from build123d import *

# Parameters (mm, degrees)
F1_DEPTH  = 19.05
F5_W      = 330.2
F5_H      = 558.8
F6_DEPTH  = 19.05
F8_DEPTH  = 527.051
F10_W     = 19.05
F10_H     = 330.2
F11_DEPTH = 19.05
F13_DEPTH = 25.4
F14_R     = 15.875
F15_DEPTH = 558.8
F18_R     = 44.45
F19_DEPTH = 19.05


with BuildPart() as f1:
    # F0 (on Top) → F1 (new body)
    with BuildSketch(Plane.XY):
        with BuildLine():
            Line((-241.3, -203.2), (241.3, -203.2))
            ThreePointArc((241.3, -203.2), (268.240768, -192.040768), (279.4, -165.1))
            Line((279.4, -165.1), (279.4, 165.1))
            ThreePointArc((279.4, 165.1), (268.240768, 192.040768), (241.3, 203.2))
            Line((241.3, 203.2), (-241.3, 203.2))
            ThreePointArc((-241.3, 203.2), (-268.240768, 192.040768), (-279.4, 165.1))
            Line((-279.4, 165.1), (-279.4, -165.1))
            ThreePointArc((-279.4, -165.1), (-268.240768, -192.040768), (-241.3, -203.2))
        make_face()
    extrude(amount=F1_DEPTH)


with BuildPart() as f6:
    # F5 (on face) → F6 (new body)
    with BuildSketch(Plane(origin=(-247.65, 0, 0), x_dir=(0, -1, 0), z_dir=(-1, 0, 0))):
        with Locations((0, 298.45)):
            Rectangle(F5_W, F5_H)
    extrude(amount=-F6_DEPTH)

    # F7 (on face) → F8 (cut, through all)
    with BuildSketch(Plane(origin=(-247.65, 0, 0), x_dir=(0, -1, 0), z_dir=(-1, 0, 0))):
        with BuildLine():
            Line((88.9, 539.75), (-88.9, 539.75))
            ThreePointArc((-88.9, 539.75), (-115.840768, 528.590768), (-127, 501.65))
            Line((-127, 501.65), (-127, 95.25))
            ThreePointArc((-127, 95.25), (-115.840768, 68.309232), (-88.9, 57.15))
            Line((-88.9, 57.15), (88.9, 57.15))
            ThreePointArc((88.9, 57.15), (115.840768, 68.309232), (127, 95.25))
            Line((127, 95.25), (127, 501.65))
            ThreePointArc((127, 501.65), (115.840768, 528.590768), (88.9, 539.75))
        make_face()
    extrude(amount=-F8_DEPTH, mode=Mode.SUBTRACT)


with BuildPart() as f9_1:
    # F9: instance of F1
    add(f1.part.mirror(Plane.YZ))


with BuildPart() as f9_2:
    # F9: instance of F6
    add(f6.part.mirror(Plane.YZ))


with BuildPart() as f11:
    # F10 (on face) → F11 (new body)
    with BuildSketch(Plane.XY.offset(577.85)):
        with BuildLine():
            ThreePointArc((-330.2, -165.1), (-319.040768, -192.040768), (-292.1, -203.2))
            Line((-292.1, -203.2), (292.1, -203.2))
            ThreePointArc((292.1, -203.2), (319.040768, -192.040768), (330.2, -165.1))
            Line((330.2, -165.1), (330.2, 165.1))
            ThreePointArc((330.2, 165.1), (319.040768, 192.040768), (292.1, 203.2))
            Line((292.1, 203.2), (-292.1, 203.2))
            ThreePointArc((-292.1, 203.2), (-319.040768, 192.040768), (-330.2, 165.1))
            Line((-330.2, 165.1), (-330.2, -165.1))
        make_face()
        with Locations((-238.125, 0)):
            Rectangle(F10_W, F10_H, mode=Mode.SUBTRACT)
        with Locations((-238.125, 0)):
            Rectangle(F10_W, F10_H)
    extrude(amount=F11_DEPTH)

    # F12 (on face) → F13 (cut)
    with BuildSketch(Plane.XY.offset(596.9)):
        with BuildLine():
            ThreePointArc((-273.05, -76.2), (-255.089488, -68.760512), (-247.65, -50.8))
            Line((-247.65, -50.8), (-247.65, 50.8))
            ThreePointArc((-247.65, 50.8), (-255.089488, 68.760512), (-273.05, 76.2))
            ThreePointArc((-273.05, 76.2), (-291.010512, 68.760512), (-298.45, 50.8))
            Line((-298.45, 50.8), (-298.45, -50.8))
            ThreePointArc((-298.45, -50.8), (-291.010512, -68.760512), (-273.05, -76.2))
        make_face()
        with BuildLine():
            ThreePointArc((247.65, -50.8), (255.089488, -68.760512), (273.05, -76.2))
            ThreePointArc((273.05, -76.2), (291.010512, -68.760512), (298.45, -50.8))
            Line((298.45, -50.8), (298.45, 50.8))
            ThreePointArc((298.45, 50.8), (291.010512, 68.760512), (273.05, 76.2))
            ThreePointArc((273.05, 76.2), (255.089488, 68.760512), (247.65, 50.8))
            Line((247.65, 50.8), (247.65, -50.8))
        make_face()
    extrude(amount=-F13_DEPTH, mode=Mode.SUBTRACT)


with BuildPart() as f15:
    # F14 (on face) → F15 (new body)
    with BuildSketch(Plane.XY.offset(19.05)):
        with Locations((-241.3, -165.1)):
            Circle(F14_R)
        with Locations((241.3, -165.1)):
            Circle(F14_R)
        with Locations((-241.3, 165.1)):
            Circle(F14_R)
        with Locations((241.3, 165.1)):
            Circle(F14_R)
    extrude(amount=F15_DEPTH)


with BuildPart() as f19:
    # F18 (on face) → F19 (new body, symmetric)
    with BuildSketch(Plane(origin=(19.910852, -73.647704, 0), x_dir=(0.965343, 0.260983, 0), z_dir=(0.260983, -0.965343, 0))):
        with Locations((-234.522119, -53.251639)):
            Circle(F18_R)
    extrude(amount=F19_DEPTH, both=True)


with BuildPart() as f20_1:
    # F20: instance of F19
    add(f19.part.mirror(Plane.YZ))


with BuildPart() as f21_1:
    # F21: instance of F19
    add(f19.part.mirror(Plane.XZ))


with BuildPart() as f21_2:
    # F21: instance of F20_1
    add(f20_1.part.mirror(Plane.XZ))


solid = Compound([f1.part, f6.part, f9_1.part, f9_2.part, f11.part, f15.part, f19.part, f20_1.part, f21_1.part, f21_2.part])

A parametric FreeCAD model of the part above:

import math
import FreeCAD as App
import Part
import Sketcher
from FreeCAD import Vector
Q = App.Units.Quantity

doc = App.newDocument("Part")
body = doc.addObject("PartDesign::Body", "Body")

# Sketch on XY plane
sketch1 = body.newObject("Sketcher::SketchObject", "Sketch")
sketch1.AttachmentSupport = (doc.getObject("XY_Plane"), [""])
sketch1.MapMode = "FlatFace"
sketch1.addGeometry([
    Part.LineSegment(Vector(-241.3, -203.2, 0), Vector(241.3, -203.2, 0)),  # 0
    Part.ArcOfCircle(Part.Circle(Vector(241.299999, -165.099999, 0), Vector(0, 0, 1), 38.100001), math.radians(-89.999998), math.radians(-0.000002)),  # 1
    Part.LineSegment(Vector(279.4, -165.1, 0), Vector(279.4, 165.1, 0)),  # 2
    Part.ArcOfCircle(Part.Circle(Vector(241.299999, 165.099999, 0), Vector(0, 0, 1), 38.100001), math.radians(0.000002), math.radians(89.999998)),  # 3
    Part.LineSegment(Vector(241.3, 203.2, 0), Vector(-241.3, 203.2, 0)),  # 4
    Part.ArcOfCircle(Part.Circle(Vector(-241.299999, 165.099999, 0), Vector(0, 0, 1), 38.100001), math.radians(90.000002), math.radians(179.999998)),  # 5
    Part.LineSegment(Vector(-279.4, 165.1, 0), Vector(-279.4, -165.1, 0)),  # 6
    Part.ArcOfCircle(Part.Circle(Vector(-241.299999, -165.099999, 0), Vector(0, 0, 1), 38.100001), math.radians(-179.999998), math.radians(-90.000002)),  # 7
], False)
sketch1.addConstraint([
    Sketcher.Constraint("Tangent", 0, 2, 1, 1),
    Sketcher.Constraint("Tangent", 1, 2, 2, 1),
    Sketcher.Constraint("Tangent", 2, 2, 3, 1),
    Sketcher.Constraint("Tangent", 3, 2, 4, 1),
    Sketcher.Constraint("Tangent", 4, 2, 5, 1),
    Sketcher.Constraint("Tangent", 5, 2, 6, 1),
    Sketcher.Constraint("Tangent", 6, 2, 7, 1),
    Sketcher.Constraint("Tangent", 7, 2, 0, 1),
    Sketcher.Constraint("Horizontal", 0),
    Sketcher.Constraint("Vertical", 2),
    Sketcher.Constraint("Horizontal", 4),
    Sketcher.Constraint("Vertical", 6),
    Sketcher.Constraint("Equal", 1, 3),
    Sketcher.Constraint("Equal", 3, 5),
    Sketcher.Constraint("Equal", 5, 7),
    Sketcher.Constraint("Symmetric", 1, 3, 5, 3, -1, 1),
    Sketcher.Constraint("Radius", 1, Q("1.5 in")),
    Sketcher.Constraint("DistanceX", 0, 1, 0, 2, Q("19 in")),
    Sketcher.Constraint("DistanceY", 2, 1, 2, 2, Q("13 in")),
])
pad1 = body.newObject("PartDesign::Pad", "Pad")
pad1.Profile = sketch1
pad1.Length = Q("0.75 in")
body2 = doc.addObject("PartDesign::Body", "Body001")

# Sketch on YZ plane
sketch2 = body2.newObject("Sketcher::SketchObject", "Sketch001")
sketch2.AttachmentSupport = (doc.getObject("YZ_Plane001"), [""])
sketch2.MapMode = "FlatFace"
sketch2.AttachmentOffset = App.Placement(Vector(0, 0, -9.75 * 25.4), App.Rotation())
sketch2.addGeometry([
    Part.LineSegment(Vector(165.1, 577.85, 0), Vector(165.1, 19.05, 0)),
    Part.LineSegment(Vector(165.1, 19.05, 0), Vector(-165.1, 19.05, 0)),
    Part.LineSegment(Vector(-165.1, 19.05, 0), Vector(-165.1, 577.85, 0)),
    Part.LineSegment(Vector(-165.1, 577.85, 0), Vector(165.1, 577.85, 0)),
], False)
sketch2.addConstraint([
    Sketcher.Constraint("Coincident", 0, 2, 1, 1),
    Sketcher.Constraint("Coincident", 1, 2, 2, 1),
    Sketcher.Constraint("Coincident", 2, 2, 3, 1),
    Sketcher.Constraint("Coincident", 3, 2, 0, 1),
    Sketcher.Constraint("Vertical", 0),
    Sketcher.Constraint("Horizontal", 1),
    Sketcher.Constraint("Vertical", 2),
    Sketcher.Constraint("Horizontal", 3),
    Sketcher.Constraint("DistanceX", 1, 2, 1, 1, Q("13 in")),
    Sketcher.Constraint("DistanceY", 0, 2, 0, 1, Q("22 in")),
    Sketcher.Constraint("DistanceX", -1, 1, 0, 2, Q("6.5 in")),
    Sketcher.Constraint("DistanceY", -1, 1, 0, 2, Q("0.75 in")),
])
pad2 = body2.newObject("PartDesign::Pad", "Pad001")
pad2.Profile = sketch2
pad2.Length = Q("0.75 in")

# Sketch on YZ plane
sketch3 = body2.newObject("Sketcher::SketchObject", "Sketch002")
sketch3.AttachmentSupport = (doc.getObject("YZ_Plane001"), [""])
sketch3.MapMode = "FlatFace"
sketch3.AttachmentOffset = App.Placement(Vector(0, 0, -9.75 * 25.4), App.Rotation())
sketch3.addGeometry([
    Part.LineSegment(Vector(-88.9, 539.75, 0), Vector(88.9, 539.75, 0)),  # 0
    Part.ArcOfCircle(Part.Circle(Vector(88.899999, 501.649999, 0), Vector(0, 0, 1), 38.100001), math.radians(0.000002), math.radians(89.999998)),  # 1
    Part.LineSegment(Vector(127, 501.65, 0), Vector(127, 95.25, 0)),  # 2
    Part.ArcOfCircle(Part.Circle(Vector(88.899999, 95.250001, 0), Vector(0, 0, 1), 38.100001), math.radians(-89.999998), math.radians(-0.000002)),  # 3
    Part.LineSegment(Vector(88.9, 57.15, 0), Vector(-88.9, 57.15, 0)),  # 4
    Part.ArcOfCircle(Part.Circle(Vector(-88.899999, 95.250001, 0), Vector(0, 0, 1), 38.100001), math.radians(-179.999998), math.radians(-90.000002)),  # 5
    Part.LineSegment(Vector(-127, 95.25, 0), Vector(-127, 501.65, 0)),  # 6
    Part.ArcOfCircle(Part.Circle(Vector(-88.899999, 501.649999, 0), Vector(0, 0, 1), 38.100001), math.radians(90.000002), math.radians(179.999998)),  # 7
], False)
sketch3.addConstraint([
    Sketcher.Constraint("Tangent", 0, 2, 1, 2),
    Sketcher.Constraint("Tangent", 1, 1, 2, 1),
    Sketcher.Constraint("Tangent", 2, 2, 3, 2),
    Sketcher.Constraint("Tangent", 3, 1, 4, 1),
    Sketcher.Constraint("Tangent", 4, 2, 5, 2),
    Sketcher.Constraint("Tangent", 5, 1, 6, 1),
    Sketcher.Constraint("Tangent", 6, 2, 7, 2),
    Sketcher.Constraint("Tangent", 7, 1, 0, 1),
    Sketcher.Constraint("Horizontal", 0),
    Sketcher.Constraint("Vertical", 2),
    Sketcher.Constraint("Horizontal", 4),
    Sketcher.Constraint("Vertical", 6),
    Sketcher.Constraint("Equal", 1, 3),
    Sketcher.Constraint("Equal", 3, 5),
    Sketcher.Constraint("Equal", 5, 7),
    Sketcher.Constraint("Radius", 1, Q("1.5 in")),
    Sketcher.Constraint("DistanceX", 0, 1, 0, 2, Q("7 in")),
    Sketcher.Constraint("DistanceY", 2, 2, 2, 1, Q("16 in")),
    Sketcher.Constraint("DistanceX", -1, 1, 1, 1, Q("5 in")),
    Sketcher.Constraint("DistanceY", -1, 1, 1, 3, Q("19.75 in")),
])
pocket1 = body2.newObject("PartDesign::Pocket", "Pocket")
pocket1.Profile = sketch3
pocket1.Type = "ThroughAll"
pocket1.Reversed = True
body3 = doc.addObject("PartDesign::Body", "Body002")
doc.recompute()

mirroring = doc.addObject("Part::Mirroring", "Mirroring")
mirroring.Source = body
mirroring.Base = Vector(0, 0, 0)
mirroring.Normal = Vector(1, 0, 0)
body3.BaseFeature = mirroring
doc.recompute()
body4 = doc.addObject("PartDesign::Body", "Body003")
doc.recompute()

mirroring2 = doc.addObject("Part::Mirroring", "Mirroring001")
mirroring2.Source = body2
mirroring2.Base = Vector(0, 0, 0)
mirroring2.Normal = Vector(1, 0, 0)
body4.BaseFeature = mirroring2
doc.recompute()
body5 = doc.addObject("PartDesign::Body", "Body004")

# Sketch on XY plane
sketch4 = body5.newObject("Sketcher::SketchObject", "Sketch003")
sketch4.AttachmentSupport = (doc.getObject("XY_Plane004"), [""])
sketch4.MapMode = "FlatFace"
sketch4.AttachmentOffset = App.Placement(Vector(0, 0, 22.75 * 25.4), App.Rotation())
sketch4.addGeometry([
    Part.ArcOfCircle(Part.Circle(Vector(-292.099999, -165.099999, 0), Vector(0, 0, 1), 38.100001), math.radians(-179.999998), math.radians(-90.000002)),  # 0
    Part.LineSegment(Vector(-292.1, -203.2, 0), Vector(292.1, -203.2, 0)),  # 1
    Part.ArcOfCircle(Part.Circle(Vector(292.099999, -165.099999, 0), Vector(0, 0, 1), 38.100001), math.radians(-89.999998), math.radians(-0.000002)),  # 2
    Part.LineSegment(Vector(330.2, -165.1, 0), Vector(330.2, 165.1, 0)),  # 3
    Part.ArcOfCircle(Part.Circle(Vector(292.099999, 165.099999, 0), Vector(0, 0, 1), 38.100001), math.radians(0.000002), math.radians(89.999998)),  # 4
    Part.LineSegment(Vector(292.1, 203.2, 0), Vector(-292.1, 203.2, 0)),  # 5
    Part.ArcOfCircle(Part.Circle(Vector(-292.099999, 165.099999, 0), Vector(0, 0, 1), 38.100001), math.radians(90.000002), math.radians(179.999998)),  # 6
    Part.LineSegment(Vector(-330.2, 165.1, 0), Vector(-330.2, -165.1, 0)),  # 7
], False)
sketch4.addConstraint([
    Sketcher.Constraint("Tangent", 0, 2, 1, 1),
    Sketcher.Constraint("Tangent", 1, 2, 2, 1),
    Sketcher.Constraint("Tangent", 2, 2, 3, 1),
    Sketcher.Constraint("Tangent", 3, 2, 4, 1),
    Sketcher.Constraint("Tangent", 4, 2, 5, 1),
    Sketcher.Constraint("Tangent", 5, 2, 6, 1),
    Sketcher.Constraint("Tangent", 6, 2, 7, 1),
    Sketcher.Constraint("Tangent", 7, 2, 0, 1),
    Sketcher.Constraint("Horizontal", 1),
    Sketcher.Constraint("Vertical", 3),
    Sketcher.Constraint("Horizontal", 5),
    Sketcher.Constraint("Vertical", 7),
    Sketcher.Constraint("Equal", 0, 2),
    Sketcher.Constraint("Equal", 2, 4),
    Sketcher.Constraint("Equal", 4, 6),
    Sketcher.Constraint("Symmetric", 0, 3, 4, 3, -1, 1),
    Sketcher.Constraint("Radius", 0, Q("1.5 in")),
    Sketcher.Constraint("DistanceX", 1, 1, 1, 2, Q("23 in")),
    Sketcher.Constraint("DistanceY", 3, 1, 3, 2, Q("13 in")),
])
pad3 = body5.newObject("PartDesign::Pad", "Pad002")
pad3.Profile = sketch4
pad3.Length = Q("0.75 in")

# Sketch on XY plane
sketch5 = body5.newObject("Sketcher::SketchObject", "Sketch004")
sketch5.AttachmentSupport = (doc.getObject("XY_Plane004"), [""])
sketch5.MapMode = "FlatFace"
sketch5.AttachmentOffset = App.Placement(Vector(0, 0, 23.5 * 25.4), App.Rotation())
sketch5.addGeometry([
    Part.ArcOfCircle(Part.Circle(Vector(-273.050001, -50.799999, 0), Vector(0, 0, 1), 25.400001), math.radians(-89.999998), math.radians(-0.000002)),  # 0
    Part.LineSegment(Vector(-247.65, -50.8, 0), Vector(-247.65, 50.8, 0)),  # 1
    Part.ArcOfCircle(Part.Circle(Vector(-273.050001, 50.799999, 0), Vector(0, 0, 1), 25.400001), math.radians(0.000002), math.radians(89.999998)),  # 2
    Part.ArcOfCircle(Part.Circle(Vector(-273.049999, 50.799999, 0), Vector(0, 0, 1), 25.400001), math.radians(90.000002), math.radians(179.999998)),  # 3
    Part.LineSegment(Vector(-298.45, 50.8, 0), Vector(-298.45, -50.8, 0)),  # 4
    Part.ArcOfCircle(Part.Circle(Vector(-273.049999, -50.799999, 0), Vector(0, 0, 1), 25.400001), math.radians(-179.999998), math.radians(-90.000002)),  # 5
    Part.ArcOfCircle(Part.Circle(Vector(273.050001, -50.799999, 0), Vector(0, 0, 1), 25.400001), math.radians(-179.999998), math.radians(-90.000002)),  # 6
    Part.ArcOfCircle(Part.Circle(Vector(273.049999, -50.799999, 0), Vector(0, 0, 1), 25.400001), math.radians(-89.999998), math.radians(-0.000002)),  # 7
    Part.LineSegment(Vector(298.45, -50.8, 0), Vector(298.45, 50.8, 0)),  # 8
    Part.ArcOfCircle(Part.Circle(Vector(273.049999, 50.799999, 0), Vector(0, 0, 1), 25.400001), math.radians(0.000002), math.radians(89.999998)),  # 9
    Part.ArcOfCircle(Part.Circle(Vector(273.050001, 50.799999, 0), Vector(0, 0, 1), 25.400001), math.radians(90.000002), math.radians(179.999998)),  # 10
    Part.LineSegment(Vector(247.65, 50.8, 0), Vector(247.65, -50.8, 0)),  # 11
], False)
sketch5.addConstraint([
    Sketcher.Constraint("Tangent", 0, 2, 1, 1),
    Sketcher.Constraint("Tangent", 1, 2, 2, 1),
    Sketcher.Constraint("Tangent", 2, 2, 3, 1),
    Sketcher.Constraint("Tangent", 3, 2, 4, 1),
    Sketcher.Constraint("Tangent", 4, 2, 5, 1),
    Sketcher.Constraint("Tangent", 5, 2, 0, 1),
    Sketcher.Constraint("Tangent", 6, 2, 7, 1),
    Sketcher.Constraint("Tangent", 7, 2, 8, 1),
    Sketcher.Constraint("Tangent", 8, 2, 9, 1),
    Sketcher.Constraint("Tangent", 9, 2, 10, 1),
    Sketcher.Constraint("Tangent", 10, 2, 11, 1),
    Sketcher.Constraint("Tangent", 11, 2, 6, 1),
    Sketcher.Constraint("Vertical", 1),
    Sketcher.Constraint("Vertical", 4),
    Sketcher.Constraint("Vertical", 8),
    Sketcher.Constraint("Vertical", 11),
    Sketcher.Constraint("Equal", 0, 2),
    Sketcher.Constraint("Equal", 2, 3),
    Sketcher.Constraint("Equal", 5, 6),
    Sketcher.Constraint("Equal", 6, 7),
    Sketcher.Constraint("Equal", 7, 9),
    Sketcher.Constraint("Symmetric", 2, 3, 6, 3, -1, 1),
    Sketcher.Constraint("Symmetric", 5, 2, 9, 2, -1, 1),
    Sketcher.Constraint("Symmetric", 5, 2, 6, 2, -2),
    Sketcher.Constraint("Vertical", 5, 3, 2, 2),
    Sketcher.Constraint("Vertical", 2, 2, 5, 2),
    Sketcher.Constraint("Radius", 0, Q("1 in")),
    Sketcher.Constraint("DistanceY", 1, 1, 1, 2, Q("4 in")),
    Sketcher.Constraint("DistanceX", 5, 3, 6, 3, Q("21.5 in")),
])
pocket2 = body5.newObject("PartDesign::Pocket", "Pocket001")
pocket2.Profile = sketch5
pocket2.Length = Q("1 in")
body6 = doc.addObject("PartDesign::Body", "Body005")
body6.AllowCompound = True

# Sketch on XY plane
sketch6 = body6.newObject("Sketcher::SketchObject", "Sketch005")
sketch6.AttachmentSupport = (doc.getObject("XY_Plane005"), [""])
sketch6.MapMode = "FlatFace"
sketch6.AttachmentOffset = App.Placement(Vector(0, 0, 0.75 * 25.4), App.Rotation())
sketch6.addGeometry([
    Part.Circle(Vector(-241.3, -165.1, 0), Vector(0, 0, 1), 15.875),
    Part.Circle(Vector(241.3, -165.1, 0), Vector(0, 0, 1), 15.875),
    Part.Circle(Vector(-241.3, 165.1, 0), Vector(0, 0, 1), 15.875),
    Part.Circle(Vector(241.3, 165.1, 0), Vector(0, 0, 1), 15.875),
], False)
sketch6.addConstraint([
    Sketcher.Constraint("Equal", 0, 1),
    Sketcher.Constraint("Equal", 1, 2),
    Sketcher.Constraint("Equal", 2, 3),
    Sketcher.Constraint("Symmetric", 1, 3, 2, 3, -1, 1),
    Sketcher.Constraint("Symmetric", 0, 3, 3, 3, -1, 1),
    Sketcher.Constraint("Symmetric", 0, 3, 1, 3, -2),
    Sketcher.Constraint("Diameter", 0, Q("1.25 in")),
    Sketcher.Constraint("DistanceX", 0, 3, 1, 3, Q("19 in")),
    Sketcher.Constraint("DistanceY", 0, 3, 2, 3, Q("13 in")),
])
pad4 = body6.newObject("PartDesign::Pad", "Pad003")
pad4.Profile = sketch6
pad4.Length = Q("22 in")
body7 = doc.addObject("PartDesign::Body", "Body006")

# Sketch on an angled plane
sketch7 = body7.newObject("Sketcher::SketchObject", "Sketch006")
sketch7.Placement = App.Placement(Vector(19.910852, -73.647704, 0), App.Rotation(Vector(0.96534337, 0.2609831, 0), Vector(0, 0, 1), Vector(0.2609831, -0.96534337, 0), "ZXY"))
sketch7.addGeometry(Part.Circle(Vector(-234.522119, -53.251639, 0), Vector(0, 0, 1), 44.45), False)
sketch7.addConstraint([
    Sketcher.Constraint("Diameter", 0, Q("3.5 in")),
    Sketcher.Constraint("DistanceX", 0, 3, -1, 1, Q("234.522119 mm")),
    Sketcher.Constraint("DistanceY", 0, 3, -1, 1, Q("53.251639 mm")),
])
pad5 = body7.newObject("PartDesign::Pad", "Pad004")
pad5.Profile = sketch7
pad5.Length = Q("1.5 in")
pad5.Midplane = True
body8 = doc.addObject("PartDesign::Body", "Body007")
doc.recompute()

mirroring3 = doc.addObject("Part::Mirroring", "Mirroring002")
mirroring3.Source = body7
mirroring3.Base = Vector(0, 0, 0)
mirroring3.Normal = Vector(1, 0, 0)
body8.BaseFeature = mirroring3
doc.recompute()
body9 = doc.addObject("PartDesign::Body", "Body008")
doc.recompute()

mirroring4 = doc.addObject("Part::Mirroring", "Mirroring003")
mirroring4.Source = body7
mirroring4.Base = Vector(0, 0, 0)
mirroring4.Normal = Vector(0, -1, 0)
body9.BaseFeature = mirroring4
doc.recompute()
body10 = doc.addObject("PartDesign::Body", "Body009")
doc.recompute()

mirroring5 = doc.addObject("Part::Mirroring", "Mirroring004")
mirroring5.Source = body8
mirroring5.Base = Vector(0, 0, 0)
mirroring5.Normal = Vector(0, -1, 0)
body10.BaseFeature = mirroring5
doc.recompute()
mirroring.Visibility = False
mirroring2.Visibility = False
mirroring3.Visibility = False
mirroring4.Visibility = False
mirroring5.Visibility = False

doc.recompute()
